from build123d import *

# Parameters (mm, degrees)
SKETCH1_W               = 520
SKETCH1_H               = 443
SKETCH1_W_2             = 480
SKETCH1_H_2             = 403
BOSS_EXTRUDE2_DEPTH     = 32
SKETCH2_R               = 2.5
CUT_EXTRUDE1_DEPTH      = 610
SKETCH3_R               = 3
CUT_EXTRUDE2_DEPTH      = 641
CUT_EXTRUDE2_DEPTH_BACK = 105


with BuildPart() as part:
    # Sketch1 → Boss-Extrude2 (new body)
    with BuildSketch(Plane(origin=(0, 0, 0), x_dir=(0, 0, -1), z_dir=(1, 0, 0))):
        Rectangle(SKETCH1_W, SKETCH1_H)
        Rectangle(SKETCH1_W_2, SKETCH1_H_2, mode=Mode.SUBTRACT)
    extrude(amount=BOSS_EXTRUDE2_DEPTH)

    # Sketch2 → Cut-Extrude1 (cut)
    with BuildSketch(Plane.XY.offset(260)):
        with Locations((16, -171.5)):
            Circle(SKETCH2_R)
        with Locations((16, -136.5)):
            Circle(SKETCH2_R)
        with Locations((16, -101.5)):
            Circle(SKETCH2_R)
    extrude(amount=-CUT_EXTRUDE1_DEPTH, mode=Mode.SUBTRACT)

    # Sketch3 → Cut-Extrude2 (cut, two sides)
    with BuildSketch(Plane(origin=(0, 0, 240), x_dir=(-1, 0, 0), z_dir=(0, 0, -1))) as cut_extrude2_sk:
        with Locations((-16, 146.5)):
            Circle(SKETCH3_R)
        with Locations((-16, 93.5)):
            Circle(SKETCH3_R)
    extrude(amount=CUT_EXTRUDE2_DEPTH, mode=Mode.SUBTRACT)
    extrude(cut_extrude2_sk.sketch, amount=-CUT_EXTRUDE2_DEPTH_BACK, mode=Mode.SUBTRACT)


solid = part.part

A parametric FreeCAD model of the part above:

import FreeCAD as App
import Part
import Sketcher

V = App.Vector
Q = App.Units.Quantity


def add_polygon(sketch, points):
    """Adds a closed chain of lines whose ends are joined by coincident constraints."""
    first, n = sketch.GeometryCount, len(points)
    for a, b in zip(points, points[1:] + points[:1]):
        sketch.addGeometry(Part.LineSegment(App.Vector(*a, 0), App.Vector(*b, 0)), False)
    for i in range(n):
        sketch.addConstraint(Sketcher.Constraint("Coincident", first + i, 2, first + (i + 1) % n, 1))

doc = App.newDocument("Part")
body = doc.addObject("PartDesign::Body", "Body")

sketch1 = doc.addObject("Sketcher::SketchObject", "Sketch")
body.addObject(sketch1)
sketch1.AttachmentSupport = (doc.YZ_Plane, [""])
sketch1.MapMode = "FlatFace"
add_polygon(sketch1, [(221.5, 260), (-221.5, 260), (-221.5, -260), (221.5, -260)])
add_polygon(sketch1, [(-201.5, -240), (-201.5, 240), (201.5, 240), (201.5, -240)])
sketch1.addConstraint([
    Sketcher.Constraint("Horizontal", 0),
    Sketcher.Constraint("Vertical", 1),
    Sketcher.Constraint("Horizontal", 2),
    Sketcher.Constraint("Vertical", 3),
    Sketcher.Constraint("Vertical", 4),
    Sketcher.Constraint("Horizontal", 5),
    Sketcher.Constraint("Vertical", 6),
    Sketcher.Constraint("Horizontal", 7),
    Sketcher.Constraint("Symmetric", 0, 2, 2, 2, -1, 1),
    Sketcher.Constraint("Symmetric", 4, 2, 6, 2, -1, 1),
    Sketcher.Constraint("DistanceX", 0, 2, 0, 1, Q("443 mm")),
    Sketcher.Constraint("DistanceX", 5, 1, 5, 2, Q("403 mm")),
    Sketcher.Constraint("DistanceY", 1, 2, 1, 1, Q("520 mm")),
    Sketcher.Constraint("DistanceY", 4, 1, 4, 2, Q("480 mm")),
])
pad1 = doc.addObject("PartDesign::Pad", "Pad")
body.addObject(pad1)
pad1.Profile = sketch1
pad1.Length = 32

sketch2 = doc.addObject("Sketcher::SketchObject", "Sketch001")
body.addObject(sketch2)
sketch2.AttachmentSupport = (doc.XY_Plane, [""])
sketch2.MapMode = "FlatFace"
sketch2.AttachmentOffset = App.Placement(V(0, 0, 260), App.Rotation())
sketch2.addGeometry([
    Part.Circle(V(16, -171.5, 0), V(0, 0, 1), 2.5),
    Part.Circle(V(16, -136.5, 0), V(0, 0, 1), 2.5),
    Part.Circle(V(16, -101.5, 0), V(0, 0, 1), 2.5),
], False)
sketch2.addConstraint([
    Sketcher.Constraint("Equal", 0, 1),
    Sketcher.Constraint("Equal", 1, 2),
    Sketcher.Constraint("Vertical", 0, 3, 1, 3),
    Sketcher.Constraint("Vertical", 1, 3, 2, 3),
    Sketcher.Constraint("Diameter", 0, Q("5 mm")),
    Sketcher.Constraint("DistanceX", -1, 1, 0, 3, Q("16 mm")),
    Sketcher.Constraint("DistanceY", 0, 3, 1, 3, Q("35 mm")),
    Sketcher.Constraint("DistanceY", 1, 3, 2, 3, Q("35 mm")),
    Sketcher.Constraint("DistanceY", 0, 3, -1, 1, Q("171.5 mm")),
])
pocket1 = doc.addObject("PartDesign::Pocket", "Pocket")
body.addObject(pocket1)
pocket1.Profile = sketch2
pocket1.Length = 610

sketch3 = doc.addObject("Sketcher::SketchObject", "Sketch002")
body.addObject(sketch3)
sketch3.AttachmentSupport = (doc.XY_Plane, [""])
sketch3.MapMode = "FlatFace"
sketch3.AttachmentOffset = App.Placement(V(0, 0, 240), App.Rotation())
sketch3.addGeometry([
    Part.Circle(V(16, 146.5, 0), V(0, 0, 1), 3),
    Part.Circle(V(16, 93.5, 0), V(0, 0, 1), 3),
], False)
sketch3.addConstraint([
    Sketcher.Constraint("Equal", 0, 1),
    Sketcher.Constraint("Vertical", 0, 3, 1, 3),
    Sketcher.Constraint("Diameter", 0, Q("6 mm")),
    Sketcher.Constraint("DistanceX", -1, 1, 0, 3, Q("16 mm")),
    Sketcher.Constraint("DistanceY", 1, 3, 0, 3, Q("53 mm")),
    Sketcher.Constraint("DistanceY", -1, 1, 0, 3, Q("146.5 mm")),
])
pocket2 = doc.addObject("PartDesign::Pocket", "Pocket001")
body.addObject(pocket2)
pocket2.Profile = sketch3
pocket2.Type = "ThroughAll"
pocket2.Midplane = True

doc.recompute()
